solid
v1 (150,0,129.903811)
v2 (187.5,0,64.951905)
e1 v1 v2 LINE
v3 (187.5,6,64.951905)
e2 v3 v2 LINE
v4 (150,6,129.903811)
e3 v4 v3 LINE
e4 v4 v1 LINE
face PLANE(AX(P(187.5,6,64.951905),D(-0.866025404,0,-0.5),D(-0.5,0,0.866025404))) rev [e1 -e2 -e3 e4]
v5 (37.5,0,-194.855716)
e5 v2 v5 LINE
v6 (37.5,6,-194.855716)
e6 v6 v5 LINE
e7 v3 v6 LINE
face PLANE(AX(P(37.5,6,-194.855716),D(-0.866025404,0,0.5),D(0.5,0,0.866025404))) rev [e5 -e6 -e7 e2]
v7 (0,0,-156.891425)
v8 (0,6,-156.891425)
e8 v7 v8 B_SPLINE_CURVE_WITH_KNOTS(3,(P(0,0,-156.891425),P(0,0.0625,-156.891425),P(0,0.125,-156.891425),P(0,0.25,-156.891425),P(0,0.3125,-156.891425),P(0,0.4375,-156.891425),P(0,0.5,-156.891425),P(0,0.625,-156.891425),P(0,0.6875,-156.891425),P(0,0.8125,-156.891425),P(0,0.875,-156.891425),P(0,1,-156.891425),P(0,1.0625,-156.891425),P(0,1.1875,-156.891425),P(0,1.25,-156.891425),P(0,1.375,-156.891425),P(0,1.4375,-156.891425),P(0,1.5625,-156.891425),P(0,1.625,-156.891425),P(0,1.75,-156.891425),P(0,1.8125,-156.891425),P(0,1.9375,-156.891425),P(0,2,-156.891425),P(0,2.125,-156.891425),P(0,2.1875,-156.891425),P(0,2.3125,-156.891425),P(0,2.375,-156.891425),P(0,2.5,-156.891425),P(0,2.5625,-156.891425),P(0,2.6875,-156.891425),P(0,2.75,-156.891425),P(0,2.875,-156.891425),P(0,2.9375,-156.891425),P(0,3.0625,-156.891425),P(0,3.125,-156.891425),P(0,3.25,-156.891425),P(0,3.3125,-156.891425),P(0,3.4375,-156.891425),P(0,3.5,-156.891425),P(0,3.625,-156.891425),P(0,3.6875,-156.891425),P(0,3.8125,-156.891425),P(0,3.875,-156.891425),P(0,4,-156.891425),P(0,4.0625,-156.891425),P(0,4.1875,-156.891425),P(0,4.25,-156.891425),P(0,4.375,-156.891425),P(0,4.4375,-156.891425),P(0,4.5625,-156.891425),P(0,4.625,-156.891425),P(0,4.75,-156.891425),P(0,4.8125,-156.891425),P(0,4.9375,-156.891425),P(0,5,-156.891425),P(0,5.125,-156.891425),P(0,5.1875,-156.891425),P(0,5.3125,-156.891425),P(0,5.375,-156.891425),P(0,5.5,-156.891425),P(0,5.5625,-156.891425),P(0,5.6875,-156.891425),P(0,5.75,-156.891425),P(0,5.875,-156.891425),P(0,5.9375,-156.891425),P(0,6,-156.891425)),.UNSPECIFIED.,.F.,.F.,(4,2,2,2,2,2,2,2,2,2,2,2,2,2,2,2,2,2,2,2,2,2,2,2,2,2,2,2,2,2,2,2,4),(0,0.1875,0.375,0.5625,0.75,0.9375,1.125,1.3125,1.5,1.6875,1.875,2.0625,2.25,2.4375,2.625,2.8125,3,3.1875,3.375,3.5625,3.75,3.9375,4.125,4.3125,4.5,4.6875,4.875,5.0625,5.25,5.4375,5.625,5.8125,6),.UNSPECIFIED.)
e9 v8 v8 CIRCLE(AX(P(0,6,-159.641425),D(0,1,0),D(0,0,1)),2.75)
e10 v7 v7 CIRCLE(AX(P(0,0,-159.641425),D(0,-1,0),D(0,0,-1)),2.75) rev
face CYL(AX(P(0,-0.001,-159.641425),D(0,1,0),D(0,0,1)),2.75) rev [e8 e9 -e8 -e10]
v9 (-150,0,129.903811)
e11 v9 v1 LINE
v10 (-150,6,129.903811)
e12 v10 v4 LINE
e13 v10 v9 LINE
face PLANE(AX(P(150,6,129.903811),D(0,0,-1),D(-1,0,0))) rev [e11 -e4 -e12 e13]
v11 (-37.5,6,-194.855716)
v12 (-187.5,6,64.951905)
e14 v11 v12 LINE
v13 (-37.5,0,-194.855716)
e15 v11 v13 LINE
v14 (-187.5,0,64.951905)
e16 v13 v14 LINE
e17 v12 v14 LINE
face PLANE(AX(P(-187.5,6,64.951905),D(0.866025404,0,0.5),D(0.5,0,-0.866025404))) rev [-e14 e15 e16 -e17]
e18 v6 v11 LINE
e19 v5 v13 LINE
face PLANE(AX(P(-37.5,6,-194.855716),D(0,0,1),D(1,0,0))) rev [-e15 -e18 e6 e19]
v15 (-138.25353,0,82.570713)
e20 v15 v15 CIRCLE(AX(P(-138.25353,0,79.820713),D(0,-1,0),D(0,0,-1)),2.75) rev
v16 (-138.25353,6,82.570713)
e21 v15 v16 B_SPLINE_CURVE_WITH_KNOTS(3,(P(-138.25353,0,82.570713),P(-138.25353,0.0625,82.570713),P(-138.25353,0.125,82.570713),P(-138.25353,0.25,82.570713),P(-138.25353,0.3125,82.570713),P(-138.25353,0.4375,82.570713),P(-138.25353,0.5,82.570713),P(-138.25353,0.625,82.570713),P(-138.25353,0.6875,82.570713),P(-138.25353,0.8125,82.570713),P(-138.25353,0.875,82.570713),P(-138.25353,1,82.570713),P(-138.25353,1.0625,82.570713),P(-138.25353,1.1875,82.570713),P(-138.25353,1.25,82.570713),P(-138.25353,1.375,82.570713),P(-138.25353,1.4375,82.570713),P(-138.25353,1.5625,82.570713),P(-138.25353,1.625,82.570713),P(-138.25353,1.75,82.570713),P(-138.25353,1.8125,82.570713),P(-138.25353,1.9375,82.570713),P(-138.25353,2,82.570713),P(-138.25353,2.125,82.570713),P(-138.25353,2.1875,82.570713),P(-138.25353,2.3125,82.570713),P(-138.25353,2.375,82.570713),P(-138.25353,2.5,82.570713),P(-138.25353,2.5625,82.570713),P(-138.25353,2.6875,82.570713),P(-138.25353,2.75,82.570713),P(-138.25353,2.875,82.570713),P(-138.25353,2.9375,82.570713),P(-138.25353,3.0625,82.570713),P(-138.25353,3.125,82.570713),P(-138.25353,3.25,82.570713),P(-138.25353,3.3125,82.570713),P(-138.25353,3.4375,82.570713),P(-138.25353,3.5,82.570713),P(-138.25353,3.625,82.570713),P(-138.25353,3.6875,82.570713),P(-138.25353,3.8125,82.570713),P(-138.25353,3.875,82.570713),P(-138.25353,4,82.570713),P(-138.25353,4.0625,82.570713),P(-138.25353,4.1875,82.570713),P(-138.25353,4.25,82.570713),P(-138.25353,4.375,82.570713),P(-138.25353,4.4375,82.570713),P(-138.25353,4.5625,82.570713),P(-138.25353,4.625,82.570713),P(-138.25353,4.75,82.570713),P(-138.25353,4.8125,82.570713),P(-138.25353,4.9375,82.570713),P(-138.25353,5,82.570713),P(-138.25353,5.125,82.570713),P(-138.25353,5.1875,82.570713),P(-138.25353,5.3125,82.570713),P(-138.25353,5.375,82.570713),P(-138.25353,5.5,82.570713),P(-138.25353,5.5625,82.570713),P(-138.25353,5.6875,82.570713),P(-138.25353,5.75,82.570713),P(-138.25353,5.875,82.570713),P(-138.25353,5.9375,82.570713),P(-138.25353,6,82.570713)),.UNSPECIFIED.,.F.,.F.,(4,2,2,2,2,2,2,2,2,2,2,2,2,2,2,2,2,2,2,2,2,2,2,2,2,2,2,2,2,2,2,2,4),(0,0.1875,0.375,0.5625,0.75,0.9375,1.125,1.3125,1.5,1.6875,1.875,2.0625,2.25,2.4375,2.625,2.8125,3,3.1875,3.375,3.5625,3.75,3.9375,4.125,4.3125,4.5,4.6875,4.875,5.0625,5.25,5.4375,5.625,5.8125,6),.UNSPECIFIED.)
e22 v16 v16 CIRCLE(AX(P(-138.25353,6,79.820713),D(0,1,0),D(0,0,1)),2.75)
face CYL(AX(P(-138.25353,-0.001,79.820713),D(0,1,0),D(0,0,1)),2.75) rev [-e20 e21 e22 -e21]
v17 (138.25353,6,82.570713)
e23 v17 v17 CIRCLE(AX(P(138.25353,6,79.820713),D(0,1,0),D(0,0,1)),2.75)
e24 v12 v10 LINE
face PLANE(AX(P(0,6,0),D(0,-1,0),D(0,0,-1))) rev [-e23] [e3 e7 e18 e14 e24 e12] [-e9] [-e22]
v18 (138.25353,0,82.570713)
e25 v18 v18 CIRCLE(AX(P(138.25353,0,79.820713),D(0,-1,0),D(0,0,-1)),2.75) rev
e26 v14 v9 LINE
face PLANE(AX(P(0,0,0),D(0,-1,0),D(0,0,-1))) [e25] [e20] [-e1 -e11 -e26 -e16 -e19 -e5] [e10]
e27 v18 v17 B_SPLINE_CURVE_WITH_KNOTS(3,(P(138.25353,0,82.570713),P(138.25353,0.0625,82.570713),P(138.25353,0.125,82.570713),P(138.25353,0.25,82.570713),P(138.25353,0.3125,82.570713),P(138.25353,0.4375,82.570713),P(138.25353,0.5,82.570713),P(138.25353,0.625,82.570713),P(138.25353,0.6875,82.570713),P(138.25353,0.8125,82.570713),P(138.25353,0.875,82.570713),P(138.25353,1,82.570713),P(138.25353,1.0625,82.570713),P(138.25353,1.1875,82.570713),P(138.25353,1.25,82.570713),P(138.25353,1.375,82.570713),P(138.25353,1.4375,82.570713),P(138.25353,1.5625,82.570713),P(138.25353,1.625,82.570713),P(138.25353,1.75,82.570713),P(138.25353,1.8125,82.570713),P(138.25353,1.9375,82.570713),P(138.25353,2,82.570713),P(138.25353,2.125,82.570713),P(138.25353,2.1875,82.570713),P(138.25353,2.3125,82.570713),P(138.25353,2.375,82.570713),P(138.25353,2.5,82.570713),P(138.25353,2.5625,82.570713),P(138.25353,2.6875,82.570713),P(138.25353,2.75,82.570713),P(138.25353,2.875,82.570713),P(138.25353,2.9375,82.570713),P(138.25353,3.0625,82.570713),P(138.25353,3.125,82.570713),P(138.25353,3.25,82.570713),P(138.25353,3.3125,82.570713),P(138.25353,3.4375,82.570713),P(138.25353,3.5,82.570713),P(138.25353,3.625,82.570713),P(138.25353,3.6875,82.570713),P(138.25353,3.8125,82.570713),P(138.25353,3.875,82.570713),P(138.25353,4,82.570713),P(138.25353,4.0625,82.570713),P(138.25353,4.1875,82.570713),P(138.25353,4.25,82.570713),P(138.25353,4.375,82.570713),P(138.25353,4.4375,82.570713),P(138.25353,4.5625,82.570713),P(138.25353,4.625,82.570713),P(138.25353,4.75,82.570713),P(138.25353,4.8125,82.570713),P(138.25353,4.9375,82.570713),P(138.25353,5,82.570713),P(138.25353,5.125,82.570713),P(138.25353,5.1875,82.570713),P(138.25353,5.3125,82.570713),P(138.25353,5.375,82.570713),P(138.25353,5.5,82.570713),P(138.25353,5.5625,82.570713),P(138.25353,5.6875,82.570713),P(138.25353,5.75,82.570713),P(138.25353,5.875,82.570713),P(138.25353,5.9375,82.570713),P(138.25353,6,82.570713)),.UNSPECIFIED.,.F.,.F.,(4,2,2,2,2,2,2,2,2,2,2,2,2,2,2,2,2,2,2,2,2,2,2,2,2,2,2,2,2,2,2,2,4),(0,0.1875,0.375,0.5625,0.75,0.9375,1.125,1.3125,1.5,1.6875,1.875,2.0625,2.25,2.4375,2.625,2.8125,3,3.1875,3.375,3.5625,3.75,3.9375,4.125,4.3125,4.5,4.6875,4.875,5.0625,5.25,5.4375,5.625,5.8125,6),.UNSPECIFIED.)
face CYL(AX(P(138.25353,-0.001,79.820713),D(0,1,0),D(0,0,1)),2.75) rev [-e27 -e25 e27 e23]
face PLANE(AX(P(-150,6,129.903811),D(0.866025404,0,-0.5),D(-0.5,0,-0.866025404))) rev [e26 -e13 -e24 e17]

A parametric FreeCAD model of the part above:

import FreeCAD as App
import Part
import Sketcher
Q = App.Units.Quantity


def add_polygon(sketch, points):
    """Adds a closed chain of lines whose ends are joined by coincident constraints."""
    first, n = sketch.GeometryCount, len(points)
    for a, b in zip(points, points[1:] + points[:1]):
        sketch.addGeometry(Part.LineSegment(App.Vector(*a, 0), App.Vector(*b, 0)), False)
    for i in range(n):
        sketch.addConstraint(Sketcher.Constraint("Coincident", first + i, 2, first + (i + 1) % n, 1))

doc = App.newDocument("Part")
params = doc.addObject("Spreadsheet::Sheet", "Params")
for row, (alias, value) in enumerate([
    ("sketch1_width", "75 mm"),
    ("sketch1_width2", "300 mm"),
    ("sketch1_length", "300 mm"),
    ("pad1_length", "6 mm"),
    ("sketch2_diameter", "5.5 mm"),
    ("sketch3_diameter", "5.5 mm"),
    ("sketch4_diameter", "5.5 mm"),
], start=1):
    params.set(f"A{row}", alias)
    params.set(f"B{row}", "=" + value)
    params.setAlias(f"B{row}", alias)

body = doc.addObject("PartDesign::Body", "Body")

# Sketch on XZ plane
sketch1 = body.newObject("Sketcher::SketchObject", "Sketch")
sketch1.AttachmentSupport = (doc.getObject("XZ_Plane"), [""])
sketch1.MapMode = "FlatFace"
add_polygon(sketch1, [(37.5, -194.855716), (-37.5, -194.855716), (-187.5, 64.951905), (-150, 129.903811), (150, 129.903811), (187.5, 64.951905)])  # lines 0-5
sketch1.addConstraint(Sketcher.Constraint("Horizontal", 0))
sketch1.addConstraint(Sketcher.Constraint("Horizontal", 3))
sketch1.addConstraint(Sketcher.Constraint("Symmetric", 1, 2, 4, 2, -2))
sketch1.addConstraint(Sketcher.Constraint("Parallel", 1, 4))
sketch1.addConstraint(Sketcher.Constraint("Parallel", 2, 5))
sketch1.addConstraint(Sketcher.Constraint("Equal", 2, 4))
sketch1.addConstraint(Sketcher.Constraint("DistanceX", 0, 2, 0, 1, 75.0))
sketch1.addConstraint(Sketcher.Constraint("DistanceX", 3, 1, 3, 2, 300.0))
sketch1.addConstraint(Sketcher.Constraint("Angle", 1, Q("120 deg")))
sketch1.addConstraint(Sketcher.Constraint("Distance", 1, 300.0))
sketch1.addConstraint(Sketcher.Constraint("DistanceY", -1, 1, 2, 2, 129.903811))
sketch1.setExpression("Constraints[12]", "Params.sketch1_width")
sketch1.setExpression("Constraints[13]", "Params.sketch1_width2")
sketch1.setExpression("Constraints[15]", "Params.sketch1_length")
pad1 = body.newObject("PartDesign::Pad", "Pad")
pad1.Profile = sketch1
pad1.setExpression("Length", "Params.pad1_length")
pad1.Reversed = True

# Sketch on XZ plane
sketch2 = body.newObject("Sketcher::SketchObject", "Sketch001")
sketch2.AttachmentSupport = (doc.getObject("XZ_Plane"), [""])
sketch2.MapMode = "FlatFace"
sketch2.AttachmentOffset = App.Placement(App.Vector(0, 0, -6), App.Rotation())
sketch2.addGeometry(Part.Circle(App.Vector(0, -159.641425, 0), App.Vector(0, 0, 1), 2.75), False)
sketch2.addConstraint(Sketcher.Constraint("PointOnObject", 0, 3, -2))
sketch2.addConstraint(Sketcher.Constraint("Diameter", 0, 5.5))
sketch2.addConstraint(Sketcher.Constraint("DistanceY", 0, 3, -1, 1, 159.641425))
sketch2.setExpression("Constraints[1]", "Params.sketch2_diameter")
pocket1 = body.newObject("PartDesign::Pocket", "Pocket")
pocket1.Profile = sketch2
pocket1.Type = "UpToFirst"
pocket1.Reversed = True

# Sketch on XZ plane
sketch3 = body.newObject("Sketcher::SketchObject", "Sketch002")
sketch3.AttachmentSupport = (doc.getObject("XZ_Plane"), [""])
sketch3.MapMode = "FlatFace"
sketch3.AttachmentOffset = App.Placement(App.Vector(0, 0, -6), App.Rotation())
sketch3.addGeometry(Part.Circle(App.Vector(-138.25353, 79.820713, 0), App.Vector(0, 0, 1), 2.75), False)
sketch3.addConstraint(Sketcher.Constraint("Diameter", 0, 5.5))
sketch3.addConstraint(Sketcher.Constraint("DistanceX", 0, 3, -1, 1, 138.25353))
sketch3.addConstraint(Sketcher.Constraint("DistanceY", -1, 1, 0, 3, 79.820713))
sketch3.setExpression("Constraints[0]", "Params.sketch3_diameter")
pocket2 = body.newObject("PartDesign::Pocket", "Pocket001")
pocket2.Profile = sketch3
pocket2.Type = "UpToFirst"
pocket2.Reversed = True

# Sketch on XZ plane
sketch4 = body.newObject("Sketcher::SketchObject", "Sketch003")
sketch4.AttachmentSupport = (doc.getObject("XZ_Plane"), [""])
sketch4.MapMode = "FlatFace"
sketch4.AttachmentOffset = App.Placement(App.Vector(0, 0, -6), App.Rotation())
sketch4.addGeometry(Part.Circle(App.Vector(138.25353, 79.820713, 0), App.Vector(0, 0, 1), 2.75), False)
sketch4.addConstraint(Sketcher.Constraint("Diameter", 0, 5.5))
sketch4.addConstraint(Sketcher.Constraint("DistanceX", -1, 1, 0, 3, 138.25353))
sketch4.addConstraint(Sketcher.Constraint("DistanceY", -1, 1, 0, 3, 79.820713))
sketch4.setExpression("Constraints[0]", "Params.sketch4_diameter")
pocket3 = body.newObject("PartDesign::Pocket", "Pocket002")
pocket3.Profile = sketch4
pocket3.Type = "UpToFirst"
pocket3.Reversed = True

doc.recompute()
